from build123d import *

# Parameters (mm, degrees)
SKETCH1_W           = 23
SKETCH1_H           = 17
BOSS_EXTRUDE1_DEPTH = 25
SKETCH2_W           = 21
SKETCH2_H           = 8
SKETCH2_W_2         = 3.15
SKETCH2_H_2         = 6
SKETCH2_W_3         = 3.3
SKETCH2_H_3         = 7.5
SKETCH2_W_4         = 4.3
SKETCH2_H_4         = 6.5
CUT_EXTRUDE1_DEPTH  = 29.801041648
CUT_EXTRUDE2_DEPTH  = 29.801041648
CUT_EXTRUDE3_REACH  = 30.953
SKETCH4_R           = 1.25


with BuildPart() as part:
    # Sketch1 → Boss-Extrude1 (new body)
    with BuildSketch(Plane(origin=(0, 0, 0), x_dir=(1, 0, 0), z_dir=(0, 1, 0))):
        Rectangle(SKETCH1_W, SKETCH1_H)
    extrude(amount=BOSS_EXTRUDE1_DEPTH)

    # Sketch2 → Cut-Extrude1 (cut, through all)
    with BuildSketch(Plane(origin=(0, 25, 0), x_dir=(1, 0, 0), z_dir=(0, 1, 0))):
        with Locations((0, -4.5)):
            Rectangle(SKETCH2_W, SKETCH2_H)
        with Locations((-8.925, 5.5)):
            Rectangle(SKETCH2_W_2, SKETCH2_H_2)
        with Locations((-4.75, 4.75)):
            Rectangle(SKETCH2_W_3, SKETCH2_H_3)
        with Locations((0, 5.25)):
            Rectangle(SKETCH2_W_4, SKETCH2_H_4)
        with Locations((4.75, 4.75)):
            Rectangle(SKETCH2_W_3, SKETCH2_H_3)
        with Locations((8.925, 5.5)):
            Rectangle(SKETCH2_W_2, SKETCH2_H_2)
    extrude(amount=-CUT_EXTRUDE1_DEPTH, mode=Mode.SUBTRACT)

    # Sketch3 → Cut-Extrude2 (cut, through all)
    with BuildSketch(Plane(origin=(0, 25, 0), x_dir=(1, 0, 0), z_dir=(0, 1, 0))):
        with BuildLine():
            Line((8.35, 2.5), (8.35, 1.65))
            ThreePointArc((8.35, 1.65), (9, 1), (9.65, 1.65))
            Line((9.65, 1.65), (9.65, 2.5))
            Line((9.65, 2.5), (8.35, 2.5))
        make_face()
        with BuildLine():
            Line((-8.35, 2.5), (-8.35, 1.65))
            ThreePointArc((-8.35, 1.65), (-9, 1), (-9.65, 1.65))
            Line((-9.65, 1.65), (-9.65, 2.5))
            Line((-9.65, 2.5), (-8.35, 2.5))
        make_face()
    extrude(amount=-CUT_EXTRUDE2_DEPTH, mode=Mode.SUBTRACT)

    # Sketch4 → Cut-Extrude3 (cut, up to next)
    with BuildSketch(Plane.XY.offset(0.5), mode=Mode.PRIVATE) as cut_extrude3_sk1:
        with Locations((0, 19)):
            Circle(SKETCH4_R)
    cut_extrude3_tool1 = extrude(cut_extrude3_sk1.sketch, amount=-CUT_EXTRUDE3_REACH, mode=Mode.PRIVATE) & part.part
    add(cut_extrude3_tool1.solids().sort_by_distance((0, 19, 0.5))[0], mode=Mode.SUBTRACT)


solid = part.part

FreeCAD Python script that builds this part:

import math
import FreeCAD as App
import Part
import Sketcher

V = App.Vector
Q = App.Units.Quantity

doc = App.newDocument("Part")
body = doc.addObject("PartDesign::Body", "Body")

# Sketch on XZ plane
sketch1 = body.newObject("Sketcher::SketchObject", "Sketch")
sketch1.AttachmentSupport = (doc.getObject("XZ_Plane"), [""])
sketch1.MapMode = "FlatFace"
sketch1.addGeometry([
    Part.LineSegment(V(-12, -8, 0), V(-12, 8, 0)),
    Part.LineSegment(V(-12, 8, 0), V(12, 8, 0)),
    Part.LineSegment(V(12, 8, 0), V(12, -8, 0)),
    Part.LineSegment(V(12, -8, 0), V(-12, -8, 0)),
], False)
sketch1.addConstraint([
    Sketcher.Constraint("Coincident", 0, 2, 1, 1),
    Sketcher.Constraint("Coincident", 1, 2, 2, 1),
    Sketcher.Constraint("Coincident", 2, 2, 3, 1),
    Sketcher.Constraint("Coincident", 3, 2, 0, 1),
    Sketcher.Constraint("Vertical", 0),
    Sketcher.Constraint("Horizontal", 1),
    Sketcher.Constraint("Vertical", 2),
    Sketcher.Constraint("Horizontal", 3),
    Sketcher.Constraint("Symmetric", 0, 2, 2, 2, -1, 1),
    Sketcher.Constraint("DistanceX", 1, 1, 1, 2, Q("23 mm")),
    Sketcher.Constraint("DistanceY", 0, 1, 0, 2, Q("17 mm")),
])
pad1 = body.newObject("PartDesign::Pad", "Pad")
pad1.Profile = sketch1
pad1.Length = 25
pad1.Reversed = True

# Sketch on XZ plane
sketch2 = body.newObject("Sketcher::SketchObject", "Sketch001")
sketch2.AttachmentSupport = (doc.getObject("XZ_Plane"), [""])
sketch2.MapMode = "FlatFace"
sketch2.AttachmentOffset = App.Placement(V(0, 0, -25), App.Rotation())
sketch2.addGeometry([
    Part.LineSegment(V(-10.5, 0.5, 0), V(-10.5, 8.5, 0)),  # 0
    Part.LineSegment(V(-10.5, 8.5, 0), V(10.5, 8.5, 0)),  # 1
    Part.LineSegment(V(10.5, 8.5, 0), V(10.5, 0.5, 0)),  # 2
    Part.LineSegment(V(10.5, 0.5, 0), V(-10.5, 0.5, 0)),  # 3
    Part.LineSegment(V(-10.5, -8.5, 0), V(-10.5, -2.5, 0)),  # 4
    Part.LineSegment(V(-10.5, -2.5, 0), V(-7.3, -2.5, 0)),  # 5
    Part.LineSegment(V(-7.3, -2.5, 0), V(-7.3, -8.5, 0)),  # 6
    Part.LineSegment(V(-7.3, -8.5, 0), V(-10.5, -8.5, 0)),  # 7
    Part.LineSegment(V(-6.4, -8.5, 0), V(-6.4, -1, 0)),  # 8
    Part.LineSegment(V(-6.4, -1, 0), V(-3.1, -1, 0)),  # 9
    Part.LineSegment(V(-3.1, -1, 0), V(-3.1, -8.5, 0)),  # 10
    Part.LineSegment(V(-3.1, -8.5, 0), V(-6.4, -8.5, 0)),  # 11
    Part.LineSegment(V(-2.1, -8.5, 0), V(-2.1, -2, 0)),  # 12
    Part.LineSegment(V(-2.1, -2, 0), V(2.1, -2, 0)),  # 13
    Part.LineSegment(V(2.1, -2, 0), V(2.1, -8.5, 0)),  # 14
    Part.LineSegment(V(2.1, -8.5, 0), V(-2.1, -8.5, 0)),  # 15
    Part.LineSegment(V(3.1, -8.5, 0), V(3.1, -1, 0)),  # 16
    Part.LineSegment(V(3.1, -1, 0), V(6.4, -1, 0)),  # 17
    Part.LineSegment(V(6.4, -1, 0), V(6.4, -8.5, 0)),  # 18
    Part.LineSegment(V(6.4, -8.5, 0), V(3.1, -8.5, 0)),  # 19
    Part.LineSegment(V(7.3, -8.5, 0), V(7.3, -2.5, 0)),  # 20
    Part.LineSegment(V(7.3, -2.5, 0), V(10.5, -2.5, 0)),  # 21
    Part.LineSegment(V(10.5, -2.5, 0), V(10.5, -8.5, 0)),  # 22
    Part.LineSegment(V(10.5, -8.5, 0), V(7.3, -8.5, 0)),  # 23
], False)
sketch2.addConstraint([
    Sketcher.Constraint("Coincident", 0, 2, 1, 1),
    Sketcher.Constraint("Coincident", 1, 2, 2, 1),
    Sketcher.Constraint("Coincident", 2, 2, 3, 1),
    Sketcher.Constraint("Coincident", 3, 2, 0, 1),
    Sketcher.Constraint("Coincident", 4, 2, 5, 1),
    Sketcher.Constraint("Coincident", 5, 2, 6, 1),
    Sketcher.Constraint("Coincident", 6, 2, 7, 1),
    Sketcher.Constraint("Coincident", 7, 2, 4, 1),
    Sketcher.Constraint("Coincident", 8, 2, 9, 1),
    Sketcher.Constraint("Coincident", 9, 2, 10, 1),
    Sketcher.Constraint("Coincident", 10, 2, 11, 1),
    Sketcher.Constraint("Coincident", 11, 2, 8, 1),
    Sketcher.Constraint("Coincident", 12, 2, 13, 1),
    Sketcher.Constraint("Coincident", 13, 2, 14, 1),
    Sketcher.Constraint("Coincident", 14, 2, 15, 1),
    Sketcher.Constraint("Coincident", 15, 2, 12, 1),
    Sketcher.Constraint("Coincident", 16, 2, 17, 1),
    Sketcher.Constraint("Coincident", 17, 2, 18, 1),
    Sketcher.Constraint("Coincident", 18, 2, 19, 1),
    Sketcher.Constraint("Coincident", 19, 2, 16, 1),
    Sketcher.Constraint("Coincident", 20, 2, 21, 1),
    Sketcher.Constraint("Coincident", 21, 2, 22, 1),
    Sketcher.Constraint("Coincident", 22, 2, 23, 1),
    Sketcher.Constraint("Coincident", 23, 2, 20, 1),
    Sketcher.Constraint("Vertical", 0),
    Sketcher.Constraint("Horizontal", 1),
    Sketcher.Constraint("Vertical", 2),
    Sketcher.Constraint("Horizontal", 3),
    Sketcher.Constraint("Vertical", 4),
    Sketcher.Constraint("Horizontal", 5),
    Sketcher.Constraint("Vertical", 6),
    Sketcher.Constraint("Horizontal", 7),
    Sketcher.Constraint("Vertical", 8),
    Sketcher.Constraint("Horizontal", 9),
    Sketcher.Constraint("Vertical", 10),
    Sketcher.Constraint("Horizontal", 11),
    Sketcher.Constraint("Vertical", 12),
    Sketcher.Constraint("Horizontal", 13),
    Sketcher.Constraint("Vertical", 14),
    Sketcher.Constraint("Horizontal", 15),
    Sketcher.Constraint("Vertical", 16),
    Sketcher.Constraint("Horizontal", 17),
    Sketcher.Constraint("Vertical", 18),
    Sketcher.Constraint("Horizontal", 19),
    Sketcher.Constraint("Vertical", 20),
    Sketcher.Constraint("Horizontal", 21),
    Sketcher.Constraint("Vertical", 22),
    Sketcher.Constraint("Horizontal", 23),
    Sketcher.Constraint("Symmetric", 1, 2, 7, 2, -1, 1),
    Sketcher.Constraint("Symmetric", 0, 2, 22, 2, -1, 1),
    Sketcher.Constraint("Symmetric", 9, 2, 16, 2, -2),
    Sketcher.Constraint("Symmetric", 11, 2, 18, 2, -2),
    Sketcher.Constraint("Symmetric", 5, 2, 20, 2, -2),
    Sketcher.Constraint("Horizontal", 7, 2, 10, 2),
    Sketcher.Constraint("Horizontal", 11, 2, 14, 2),
    Sketcher.Constraint("Vertical", 3, 2, 4, 2),
    Sketcher.Constraint("DistanceX", 1, 1, 1, 2, Q("21 mm")),
    Sketcher.Constraint("DistanceY", 0, 1, 0, 2, Q("8 mm")),
    Sketcher.Constraint("DistanceY", 4, 1, 4, 2, Q("6 mm")),
    Sketcher.Constraint("DistanceX", 9, 1, 9, 2, Q("3.3 mm")),
    Sketcher.Constraint("DistanceX", 13, 1, 13, 2, Q("4.3 mm")),
    Sketcher.Constraint("DistanceY", 8, 1, 8, 2, Q("7.5 mm")),
    Sketcher.Constraint("DistanceY", 12, 1, 12, 2, Q("6.5 mm")),
    Sketcher.Constraint("DistanceY", 8, 2, -1, 1, Q("1 mm")),
    Sketcher.Constraint("DistanceX", 5, 1, 5, 2, Q("3.15 mm")),
    Sketcher.Constraint("DistanceX", 8, 2, -1, 1, Q("6.4 mm")),
    Sketcher.Constraint("DistanceX", 5, 2, 12, 2, Q("5.2 mm")),
])
pocket1 = body.newObject("PartDesign::Pocket", "Pocket")
pocket1.Profile = sketch2
pocket1.Type = "ThroughAll"
pocket1.Reversed = True

# Sketch on XZ plane
sketch3 = body.newObject("Sketcher::SketchObject", "Sketch002")
sketch3.AttachmentSupport = (doc.getObject("XZ_Plane"), [""])
sketch3.MapMode = "FlatFace"
sketch3.AttachmentOffset = App.Placement(V(0, 0, -25), App.Rotation())
sketch3.addGeometry([
    Part.LineSegment(V(8.3, -2.5, 0), V(8.3, -1.6, 0)),  # 0
    Part.ArcOfCircle(Part.Circle(V(9, -1.6, 0), V(0, 0, 1), 0.7), math.radians(0), math.radians(180)),  # 1
    Part.LineSegment(V(9.7, -1.6, 0), V(9.7, -2.5, 0)),  # 2
    Part.LineSegment(V(9.7, -2.5, 0), V(8.3, -2.5, 0)),  # 3
    Part.LineSegment(V(-8.3, -1.6, 0), V(-8.3, -2.5, 0)),  # 4
    Part.LineSegment(V(-8.3, -2.5, 0), V(-9.7, -2.5, 0)),  # 5
    Part.LineSegment(V(-9.7, -2.5, 0), V(-9.7, -1.6, 0)),  # 6
    Part.ArcOfCircle(Part.Circle(V(-9, -1.6, 0), V(0, 0, 1), 0.7), math.radians(0), math.radians(180)),  # 7
], False)
sketch3.addConstraint([
    Sketcher.Constraint("Tangent", 0, 2, 1, 2),
    Sketcher.Constraint("Tangent", 1, 1, 2, 1),
    Sketcher.Constraint("Coincident", 2, 2, 3, 1),
    Sketcher.Constraint("Coincident", 3, 2, 0, 1),
    Sketcher.Constraint("Coincident", 4, 2, 5, 1),
    Sketcher.Constraint("Coincident", 5, 2, 6, 1),
    Sketcher.Constraint("Tangent", 6, 2, 7, 2),
    Sketcher.Constraint("Tangent", 7, 1, 4, 1),
    Sketcher.Constraint("Vertical", 0),
    Sketcher.Constraint("Vertical", 2),
    Sketcher.Constraint("Horizontal", 3),
    Sketcher.Constraint("Vertical", 4),
    Sketcher.Constraint("Horizontal", 5),
    Sketcher.Constraint("Vertical", 6),
    Sketcher.Constraint("Equal", 1, 7),
    Sketcher.Constraint("Symmetric", 1, 3, 7, 3, -2),
    Sketcher.Constraint("Horizontal", 3, 2, 4, 2),
    Sketcher.Constraint("Radius", 1, Q("0.65 mm")),
    Sketcher.Constraint("DistanceX", -1, 1, 1, 3, Q("9 mm")),
    Sketcher.Constraint("DistanceY", 0, 1, 0, 2, Q("0.85 mm")),
    Sketcher.Constraint("DistanceY", 2, 2, -1, 1, Q("2.5 mm")),
])
pocket2 = body.newObject("PartDesign::Pocket", "Pocket001")
pocket2.Profile = sketch3
pocket2.Type = "ThroughAll"
pocket2.Reversed = True

# Sketch on XY plane
sketch4 = body.newObject("Sketcher::SketchObject", "Sketch003")
sketch4.AttachmentSupport = (doc.getObject("XY_Plane"), [""])
sketch4.MapMode = "FlatFace"
sketch4.AttachmentOffset = App.Placement(V(0, 0, 0.5), App.Rotation())
sketch4.addGeometry(Part.Circle(V(0, 19, 0), V(0, 0, 1), 1.2), False)
sketch4.addConstraint([
    Sketcher.Constraint("PointOnObject", 0, 3, -2),
    Sketcher.Constraint("Diameter", 0, Q("2.5 mm")),
    Sketcher.Constraint("DistanceY", -1, 1, 0, 3, Q("19 mm")),
])
pocket3 = body.newObject("PartDesign::Pocket", "Pocket002")
pocket3.Profile = sketch4
pocket3.Type = "UpToFirst"

doc.recompute()
